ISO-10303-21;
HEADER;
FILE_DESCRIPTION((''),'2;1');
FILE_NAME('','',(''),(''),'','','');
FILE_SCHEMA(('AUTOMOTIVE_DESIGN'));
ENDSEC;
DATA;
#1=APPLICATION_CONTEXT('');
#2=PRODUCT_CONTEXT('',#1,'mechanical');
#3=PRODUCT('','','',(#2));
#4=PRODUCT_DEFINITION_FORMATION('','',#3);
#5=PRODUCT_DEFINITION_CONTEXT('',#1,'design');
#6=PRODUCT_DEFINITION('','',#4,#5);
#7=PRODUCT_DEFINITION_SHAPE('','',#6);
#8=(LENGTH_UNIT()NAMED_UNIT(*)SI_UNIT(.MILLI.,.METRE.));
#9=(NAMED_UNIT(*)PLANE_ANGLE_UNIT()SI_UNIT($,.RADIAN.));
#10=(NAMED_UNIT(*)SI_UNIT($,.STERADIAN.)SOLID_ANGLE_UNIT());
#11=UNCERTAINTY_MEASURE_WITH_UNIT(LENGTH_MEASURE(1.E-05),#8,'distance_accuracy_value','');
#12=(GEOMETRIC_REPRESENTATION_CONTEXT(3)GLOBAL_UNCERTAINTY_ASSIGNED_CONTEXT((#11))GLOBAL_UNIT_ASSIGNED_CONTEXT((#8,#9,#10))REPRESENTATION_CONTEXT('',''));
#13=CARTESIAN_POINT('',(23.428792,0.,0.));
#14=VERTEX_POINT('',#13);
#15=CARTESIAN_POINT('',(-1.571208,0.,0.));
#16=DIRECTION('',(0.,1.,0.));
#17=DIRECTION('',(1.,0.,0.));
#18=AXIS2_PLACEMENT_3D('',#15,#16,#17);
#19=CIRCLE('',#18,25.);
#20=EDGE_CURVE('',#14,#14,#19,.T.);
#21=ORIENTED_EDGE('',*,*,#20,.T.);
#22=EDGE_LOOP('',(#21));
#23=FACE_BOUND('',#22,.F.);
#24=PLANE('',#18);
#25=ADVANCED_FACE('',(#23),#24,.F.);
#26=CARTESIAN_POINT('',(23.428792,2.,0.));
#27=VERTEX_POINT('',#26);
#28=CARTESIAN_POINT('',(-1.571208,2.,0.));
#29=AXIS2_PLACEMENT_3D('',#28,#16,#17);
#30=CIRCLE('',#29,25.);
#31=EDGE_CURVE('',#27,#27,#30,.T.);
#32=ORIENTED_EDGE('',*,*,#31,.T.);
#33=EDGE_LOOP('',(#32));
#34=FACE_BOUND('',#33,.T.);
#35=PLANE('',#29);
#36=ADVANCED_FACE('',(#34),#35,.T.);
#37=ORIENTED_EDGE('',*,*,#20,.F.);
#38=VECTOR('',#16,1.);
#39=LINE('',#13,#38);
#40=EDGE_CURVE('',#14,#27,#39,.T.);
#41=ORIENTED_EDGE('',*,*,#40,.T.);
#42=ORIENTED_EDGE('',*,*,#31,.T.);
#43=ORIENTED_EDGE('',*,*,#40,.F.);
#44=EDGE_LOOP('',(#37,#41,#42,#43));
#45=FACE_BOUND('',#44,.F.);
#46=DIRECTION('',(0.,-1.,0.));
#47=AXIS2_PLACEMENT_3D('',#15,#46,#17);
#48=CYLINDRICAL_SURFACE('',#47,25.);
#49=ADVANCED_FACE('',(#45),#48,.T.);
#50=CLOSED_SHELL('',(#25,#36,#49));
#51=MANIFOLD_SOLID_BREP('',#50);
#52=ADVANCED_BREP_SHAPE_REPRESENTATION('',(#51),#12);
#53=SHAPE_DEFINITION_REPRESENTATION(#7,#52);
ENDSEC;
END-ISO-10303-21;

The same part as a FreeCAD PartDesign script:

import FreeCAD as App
import Part
import Sketcher
from FreeCAD import Vector

doc = App.newDocument("Part")
body = doc.addObject("PartDesign::Body", "Body")

# Sketch on XZ plane
sketch1 = doc.addObject("Sketcher::SketchObject", "Sketch")
body.addObject(sketch1)
sketch1.AttachmentSupport = (doc.XZ_Plane, [""])
sketch1.MapMode = "FlatFace"
sketch1.addGeometry(Part.Circle(Vector(-2, 0, 0), Vector(0, 0, 1), 25), False)
sketch1.addConstraint([
    Sketcher.Constraint("PointOnObject", 0, 3, -1),
    Sketcher.Constraint("Diameter", 0, 50.0),
    Sketcher.Constraint("DistanceX", 0, 3, -1, 1, 1.571208),
])
pad1 = doc.addObject("PartDesign::Pad", "Pad")
body.addObject(pad1)
pad1.Profile = sketch1
pad1.Length = 2
pad1.Reversed = True

doc.recompute()
